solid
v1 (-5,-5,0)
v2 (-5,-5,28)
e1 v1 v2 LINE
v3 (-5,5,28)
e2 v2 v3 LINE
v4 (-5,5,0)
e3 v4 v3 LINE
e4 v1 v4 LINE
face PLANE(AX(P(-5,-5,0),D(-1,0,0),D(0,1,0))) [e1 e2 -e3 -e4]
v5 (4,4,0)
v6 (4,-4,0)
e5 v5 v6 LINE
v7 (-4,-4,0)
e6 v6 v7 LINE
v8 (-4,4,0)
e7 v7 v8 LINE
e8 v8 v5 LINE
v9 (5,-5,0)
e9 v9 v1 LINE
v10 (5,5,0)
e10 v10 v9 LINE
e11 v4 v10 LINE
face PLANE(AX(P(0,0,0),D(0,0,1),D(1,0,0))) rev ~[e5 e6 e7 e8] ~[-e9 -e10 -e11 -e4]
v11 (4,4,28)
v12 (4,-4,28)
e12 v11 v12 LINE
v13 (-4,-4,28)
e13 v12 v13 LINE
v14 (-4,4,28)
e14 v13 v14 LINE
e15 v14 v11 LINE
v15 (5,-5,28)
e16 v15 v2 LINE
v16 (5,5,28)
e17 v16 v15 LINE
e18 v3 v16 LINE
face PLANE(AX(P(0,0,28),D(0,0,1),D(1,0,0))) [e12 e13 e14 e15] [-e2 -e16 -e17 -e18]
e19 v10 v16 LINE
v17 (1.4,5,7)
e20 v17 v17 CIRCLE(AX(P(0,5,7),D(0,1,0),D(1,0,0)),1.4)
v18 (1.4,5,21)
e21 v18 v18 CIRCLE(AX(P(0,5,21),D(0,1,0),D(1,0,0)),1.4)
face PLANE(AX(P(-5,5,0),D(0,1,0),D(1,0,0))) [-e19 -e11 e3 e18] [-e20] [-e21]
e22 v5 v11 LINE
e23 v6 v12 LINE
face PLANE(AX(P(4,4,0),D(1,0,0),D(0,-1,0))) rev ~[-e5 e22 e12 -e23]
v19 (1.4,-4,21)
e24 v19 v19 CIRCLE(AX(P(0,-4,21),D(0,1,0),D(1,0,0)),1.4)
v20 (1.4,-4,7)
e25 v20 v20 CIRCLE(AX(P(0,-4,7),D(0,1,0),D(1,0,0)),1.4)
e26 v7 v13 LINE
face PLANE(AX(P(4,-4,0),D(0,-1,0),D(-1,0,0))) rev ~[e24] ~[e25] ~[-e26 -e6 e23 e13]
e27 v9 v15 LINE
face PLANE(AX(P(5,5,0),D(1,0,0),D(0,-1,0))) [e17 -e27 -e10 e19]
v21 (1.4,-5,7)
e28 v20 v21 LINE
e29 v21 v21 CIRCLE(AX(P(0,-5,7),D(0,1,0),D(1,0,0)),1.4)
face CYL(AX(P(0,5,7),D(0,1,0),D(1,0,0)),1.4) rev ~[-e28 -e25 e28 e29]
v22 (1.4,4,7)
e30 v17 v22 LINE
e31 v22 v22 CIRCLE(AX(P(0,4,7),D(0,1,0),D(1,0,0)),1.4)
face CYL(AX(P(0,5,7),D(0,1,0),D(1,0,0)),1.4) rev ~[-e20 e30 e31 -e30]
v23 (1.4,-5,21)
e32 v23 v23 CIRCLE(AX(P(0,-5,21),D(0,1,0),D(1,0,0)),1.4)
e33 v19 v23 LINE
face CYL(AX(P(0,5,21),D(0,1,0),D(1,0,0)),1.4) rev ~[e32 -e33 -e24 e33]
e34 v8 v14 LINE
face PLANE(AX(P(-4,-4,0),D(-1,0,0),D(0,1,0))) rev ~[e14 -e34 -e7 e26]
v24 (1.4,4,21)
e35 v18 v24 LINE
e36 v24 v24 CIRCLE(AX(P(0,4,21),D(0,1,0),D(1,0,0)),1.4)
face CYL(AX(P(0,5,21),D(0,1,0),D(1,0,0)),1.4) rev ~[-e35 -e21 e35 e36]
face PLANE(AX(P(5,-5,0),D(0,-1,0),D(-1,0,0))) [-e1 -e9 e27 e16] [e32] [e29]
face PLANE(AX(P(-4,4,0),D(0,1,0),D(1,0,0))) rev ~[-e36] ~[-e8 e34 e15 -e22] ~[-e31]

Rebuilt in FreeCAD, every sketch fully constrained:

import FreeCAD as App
import Part
import Sketcher
from FreeCAD import Vector


def add_polygon(sketch, points):
    """Adds a closed chain of lines whose ends are joined by coincident constraints."""
    first, n = sketch.GeometryCount, len(points)
    for a, b in zip(points, points[1:] + points[:1]):
        sketch.addGeometry(Part.LineSegment(App.Vector(*a, 0), App.Vector(*b, 0)), False)
    for i in range(n):
        sketch.addConstraint(Sketcher.Constraint("Coincident", first + i, 2, first + (i + 1) % n, 1))

doc = App.newDocument("Part")
body = doc.addObject("PartDesign::Body", "Body")

# Sketch on XY plane
sketch1 = body.newObject("Sketcher::SketchObject", "Sketch")
sketch1.AttachmentSupport = (doc.getObject("XY_Plane"), [""])
sketch1.MapMode = "FlatFace"
add_polygon(sketch1, [(5, 5), (-5, 5), (-5, -5), (5, -5)])  # lines 0-3
add_polygon(sketch1, [(-4, -4), (-4, 4), (4, 4), (4, -4)])  # lines 4-7
sketch1.addConstraint([
    Sketcher.Constraint("Horizontal", 0),
    Sketcher.Constraint("Vertical", 1),
    Sketcher.Constraint("Horizontal", 2),
    Sketcher.Constraint("Vertical", 3),
    Sketcher.Constraint("Vertical", 4),
    Sketcher.Constraint("Horizontal", 5),
    Sketcher.Constraint("Vertical", 6),
    Sketcher.Constraint("Horizontal", 7),
    Sketcher.Constraint("Symmetric", 0, 2, 2, 2, -1, 1),
    Sketcher.Constraint("Symmetric", 4, 2, 6, 2, -1, 1),
    Sketcher.Constraint("Equal", 2, 1),
    Sketcher.Constraint("Equal", 7, 4),
    Sketcher.Constraint("DistanceX", 0, 2, 0, 1, 10.0),
    Sketcher.Constraint("DistanceX", 5, 1, 5, 2, 8.0),
])
pad1 = body.newObject("PartDesign::Pad", "Pad")
pad1.Profile = sketch1
pad1.Length = 28

# Sketch on XZ plane
sketch2 = body.newObject("Sketcher::SketchObject", "Sketch001")
sketch2.AttachmentSupport = (doc.getObject("XZ_Plane"), [""])
sketch2.MapMode = "FlatFace"
sketch2.AttachmentOffset = App.Placement(Vector(0, 0, -5), App.Rotation())
sketch2.addGeometry([
    Part.Circle(Vector(0, 7, 0), Vector(0, 0, 1), 1.4),
    Part.Circle(Vector(0, 21, 0), Vector(0, 0, 1), 1.4),
], False)
sketch2.addConstraint([
    Sketcher.Constraint("Equal", 0, 1),
    Sketcher.Constraint("PointOnObject", 0, 3, -2),
    Sketcher.Constraint("PointOnObject", 1, 3, -2),
    Sketcher.Constraint("Diameter", 0, 2.8),
    Sketcher.Constraint("DistanceY", -1, 1, 0, 3, 7.0),
    Sketcher.Constraint("DistanceY", -1, 1, 1, 3, 21.0),
])
pocket1 = body.newObject("PartDesign::Pocket", "Pocket")
pocket1.Profile = sketch2
pocket1.Type = "ThroughAll"
pocket1.Reversed = True

doc.recompute()
